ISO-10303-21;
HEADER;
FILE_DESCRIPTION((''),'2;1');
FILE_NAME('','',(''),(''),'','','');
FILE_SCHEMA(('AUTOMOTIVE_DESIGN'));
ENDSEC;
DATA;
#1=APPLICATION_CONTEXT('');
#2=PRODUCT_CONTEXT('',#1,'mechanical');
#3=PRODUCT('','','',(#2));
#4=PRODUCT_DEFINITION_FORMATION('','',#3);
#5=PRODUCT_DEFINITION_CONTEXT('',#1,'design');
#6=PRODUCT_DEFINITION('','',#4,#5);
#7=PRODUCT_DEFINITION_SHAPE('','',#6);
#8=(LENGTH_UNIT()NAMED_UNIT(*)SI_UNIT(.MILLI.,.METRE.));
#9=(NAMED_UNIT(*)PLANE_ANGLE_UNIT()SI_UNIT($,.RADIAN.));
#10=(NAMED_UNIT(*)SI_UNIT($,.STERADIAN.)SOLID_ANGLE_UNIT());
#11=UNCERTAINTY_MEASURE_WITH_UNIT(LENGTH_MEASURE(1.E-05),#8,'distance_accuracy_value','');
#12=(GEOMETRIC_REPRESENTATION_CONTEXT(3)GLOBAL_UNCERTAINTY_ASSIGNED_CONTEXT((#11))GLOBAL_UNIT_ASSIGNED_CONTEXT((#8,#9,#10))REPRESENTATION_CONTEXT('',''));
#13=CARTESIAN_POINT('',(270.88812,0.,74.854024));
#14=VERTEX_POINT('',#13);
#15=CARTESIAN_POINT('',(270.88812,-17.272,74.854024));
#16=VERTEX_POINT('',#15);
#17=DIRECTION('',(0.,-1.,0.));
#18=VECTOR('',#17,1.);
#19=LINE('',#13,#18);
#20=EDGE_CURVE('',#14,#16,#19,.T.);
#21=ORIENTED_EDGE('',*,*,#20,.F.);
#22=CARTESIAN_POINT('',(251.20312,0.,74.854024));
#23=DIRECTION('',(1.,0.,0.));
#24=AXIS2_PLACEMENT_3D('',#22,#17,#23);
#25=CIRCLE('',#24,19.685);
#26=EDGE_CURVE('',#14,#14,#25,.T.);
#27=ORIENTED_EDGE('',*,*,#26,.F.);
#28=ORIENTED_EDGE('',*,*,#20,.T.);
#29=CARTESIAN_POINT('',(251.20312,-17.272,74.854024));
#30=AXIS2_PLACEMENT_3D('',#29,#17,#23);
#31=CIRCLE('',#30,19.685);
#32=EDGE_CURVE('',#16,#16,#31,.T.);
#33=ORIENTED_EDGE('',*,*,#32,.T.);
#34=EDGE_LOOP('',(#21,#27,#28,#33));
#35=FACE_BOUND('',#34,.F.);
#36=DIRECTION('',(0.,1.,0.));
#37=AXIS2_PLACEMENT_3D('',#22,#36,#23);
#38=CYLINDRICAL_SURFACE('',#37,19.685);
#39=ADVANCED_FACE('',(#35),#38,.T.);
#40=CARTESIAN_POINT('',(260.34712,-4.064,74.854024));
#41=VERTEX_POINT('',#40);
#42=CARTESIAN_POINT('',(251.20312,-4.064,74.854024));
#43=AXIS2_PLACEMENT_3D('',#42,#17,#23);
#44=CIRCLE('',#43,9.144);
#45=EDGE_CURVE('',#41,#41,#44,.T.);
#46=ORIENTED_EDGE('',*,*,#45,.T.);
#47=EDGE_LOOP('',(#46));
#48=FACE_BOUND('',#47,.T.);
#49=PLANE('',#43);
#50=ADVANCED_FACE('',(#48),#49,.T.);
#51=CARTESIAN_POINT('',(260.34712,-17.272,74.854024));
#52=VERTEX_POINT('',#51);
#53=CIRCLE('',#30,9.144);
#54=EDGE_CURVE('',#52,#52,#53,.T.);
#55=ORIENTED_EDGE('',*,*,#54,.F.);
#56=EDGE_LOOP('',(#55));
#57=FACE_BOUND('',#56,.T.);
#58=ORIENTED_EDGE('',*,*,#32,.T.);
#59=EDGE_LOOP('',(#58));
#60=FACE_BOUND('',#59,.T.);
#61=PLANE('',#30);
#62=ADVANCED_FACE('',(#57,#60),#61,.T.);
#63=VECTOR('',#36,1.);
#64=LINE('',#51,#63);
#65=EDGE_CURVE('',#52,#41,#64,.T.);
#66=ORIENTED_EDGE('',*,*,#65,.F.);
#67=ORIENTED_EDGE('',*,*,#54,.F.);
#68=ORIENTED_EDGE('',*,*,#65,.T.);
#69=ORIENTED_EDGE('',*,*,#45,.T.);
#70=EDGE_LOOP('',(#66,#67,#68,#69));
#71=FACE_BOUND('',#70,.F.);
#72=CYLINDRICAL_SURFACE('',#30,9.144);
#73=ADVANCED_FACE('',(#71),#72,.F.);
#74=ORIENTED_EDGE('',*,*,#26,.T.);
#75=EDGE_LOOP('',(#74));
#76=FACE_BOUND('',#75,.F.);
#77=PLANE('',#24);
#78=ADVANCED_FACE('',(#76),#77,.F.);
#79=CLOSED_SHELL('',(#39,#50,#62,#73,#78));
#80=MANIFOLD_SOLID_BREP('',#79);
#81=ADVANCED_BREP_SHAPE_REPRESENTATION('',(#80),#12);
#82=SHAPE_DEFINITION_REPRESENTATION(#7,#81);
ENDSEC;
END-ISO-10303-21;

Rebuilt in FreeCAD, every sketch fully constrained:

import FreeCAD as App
import Part
import Sketcher
from FreeCAD import Vector
Q = App.Units.Quantity

doc = App.newDocument("Part")
body = doc.addObject("PartDesign::Body", "Body")

sketch1 = body.newObject("Sketcher::SketchObject", "Sketch")
sketch1.AttachmentSupport = (doc.getObject("XZ_Plane"), [""])
sketch1.MapMode = "FlatFace"
sketch1.addGeometry(Part.Circle(Vector(251.20312, 74.854024, 0), Vector(0, 0, 1), 19.685), False)
sketch1.addConstraint([
    Sketcher.Constraint("Diameter", 0, Q("1.55 in")),
    Sketcher.Constraint("DistanceX", -1, 1, 0, 3, Q("251.20312 mm")),
    Sketcher.Constraint("DistanceY", -1, 1, 0, 3, Q("74.854024 mm")),
])
pad1 = body.newObject("PartDesign::Pad", "Pad")
pad1.Profile = sketch1
pad1.Length = Q("0.68 in")

sketch2 = body.newObject("Sketcher::SketchObject", "Sketch001")
sketch2.AttachmentSupport = (doc.getObject("XZ_Plane"), [""])
sketch2.MapMode = "FlatFace"
sketch2.AttachmentOffset = App.Placement(Vector(0, 0, 0.68 * 25.4), App.Rotation())
sketch2.addGeometry(Part.Circle(Vector(251.20312, 74.854024, 0), Vector(0, 0, 1), 9.144), False)
sketch2.addConstraint([
    Sketcher.Constraint("Diameter", 0, Q("0.72 in")),
    Sketcher.Constraint("DistanceX", -1, 1, 0, 3, Q("251.20312 mm")),
    Sketcher.Constraint("DistanceY", -1, 1, 0, 3, Q("74.854024 mm")),
])
pocket1 = body.newObject("PartDesign::Pocket", "Pocket")
pocket1.Profile = sketch2
pocket1.Length = Q("0.52 in")

sketch3 = body.newObject("Sketcher::SketchObject", "Sketch002")
sketch3.AttachmentSupport = (doc.getObject("XZ_Plane"), [""])
sketch3.MapMode = "FlatFace"
sketch3.AttachmentOffset = App.Placement(Vector(0, 0, 0.16 * 25.4), App.Rotation())
sketch3.addGeometry([
    Part.Circle(Vector(125.80603, 237.004958, 0), Vector(0, 0, 1), 1.999421),
    Part.Circle(Vector(-78.629516, 256.54611, 0), Vector(0, 0, 1), 1.999421),
    Part.Circle(Vector(-237.004958, 125.80603, 0), Vector(0, 0, 1), 1.999421),
    Part.Circle(Vector(-256.54611, -78.629516, 0), Vector(0, 0, 1), 1.999421),
    Part.Circle(Vector(-125.80603, -237.004958, 0), Vector(0, 0, 1), 1.999421),
    Part.Circle(Vector(78.629516, -256.54611, 0), Vector(0, 0, 1), 1.999421),
    Part.Circle(Vector(237.004958, -125.80603, 0), Vector(0, 0, 1), 1.999421),
], False)
sketch3.addConstraint([
    Sketcher.Constraint("Equal", 0, 1),
    Sketcher.Constraint("Equal", 1, 2),
    Sketcher.Constraint("Equal", 2, 3),
    Sketcher.Constraint("Equal", 3, 4),
    Sketcher.Constraint("Equal", 4, 5),
    Sketcher.Constraint("Equal", 5, 6),
    Sketcher.Constraint("Symmetric", 0, 3, 4, 3, -1, 1),
    Sketcher.Constraint("Symmetric", 1, 3, 5, 3, -1, 1),
    Sketcher.Constraint("Symmetric", 2, 3, 6, 3, -1, 1),
    Sketcher.Constraint("Diameter", 0, Q("3.998842 mm")),
    Sketcher.Constraint("DistanceX", -1, 1, 0, 3, Q("125.80603 mm")),
    Sketcher.Constraint("DistanceY", -1, 1, 1, 3, Q("256.54611 mm")),
    Sketcher.Constraint("DistanceY", -1, 1, 2, 3, Q("125.80603 mm")),
    Sketcher.Constraint("DistanceX", 3, 3, -1, 1, Q("256.54611 mm")),
    Sketcher.Constraint("DistanceX", 2, 3, 1, 3, Q("158.375442 mm")),
    Sketcher.Constraint("DistanceX", 2, 3, 0, 3, Q("362.810988 mm")),
    Sketcher.Constraint("DistanceY", 4, 3, 3, 3, Q("158.375442 mm")),
    Sketcher.Constraint("DistanceY", 4, 3, 2, 3, Q("362.810988 mm")),
])
pocket2 = body.newObject("PartDesign::Pocket", "Pocket001")
pocket2.Profile = sketch3
pocket2.Length = Q("1 in")

doc.recompute()
